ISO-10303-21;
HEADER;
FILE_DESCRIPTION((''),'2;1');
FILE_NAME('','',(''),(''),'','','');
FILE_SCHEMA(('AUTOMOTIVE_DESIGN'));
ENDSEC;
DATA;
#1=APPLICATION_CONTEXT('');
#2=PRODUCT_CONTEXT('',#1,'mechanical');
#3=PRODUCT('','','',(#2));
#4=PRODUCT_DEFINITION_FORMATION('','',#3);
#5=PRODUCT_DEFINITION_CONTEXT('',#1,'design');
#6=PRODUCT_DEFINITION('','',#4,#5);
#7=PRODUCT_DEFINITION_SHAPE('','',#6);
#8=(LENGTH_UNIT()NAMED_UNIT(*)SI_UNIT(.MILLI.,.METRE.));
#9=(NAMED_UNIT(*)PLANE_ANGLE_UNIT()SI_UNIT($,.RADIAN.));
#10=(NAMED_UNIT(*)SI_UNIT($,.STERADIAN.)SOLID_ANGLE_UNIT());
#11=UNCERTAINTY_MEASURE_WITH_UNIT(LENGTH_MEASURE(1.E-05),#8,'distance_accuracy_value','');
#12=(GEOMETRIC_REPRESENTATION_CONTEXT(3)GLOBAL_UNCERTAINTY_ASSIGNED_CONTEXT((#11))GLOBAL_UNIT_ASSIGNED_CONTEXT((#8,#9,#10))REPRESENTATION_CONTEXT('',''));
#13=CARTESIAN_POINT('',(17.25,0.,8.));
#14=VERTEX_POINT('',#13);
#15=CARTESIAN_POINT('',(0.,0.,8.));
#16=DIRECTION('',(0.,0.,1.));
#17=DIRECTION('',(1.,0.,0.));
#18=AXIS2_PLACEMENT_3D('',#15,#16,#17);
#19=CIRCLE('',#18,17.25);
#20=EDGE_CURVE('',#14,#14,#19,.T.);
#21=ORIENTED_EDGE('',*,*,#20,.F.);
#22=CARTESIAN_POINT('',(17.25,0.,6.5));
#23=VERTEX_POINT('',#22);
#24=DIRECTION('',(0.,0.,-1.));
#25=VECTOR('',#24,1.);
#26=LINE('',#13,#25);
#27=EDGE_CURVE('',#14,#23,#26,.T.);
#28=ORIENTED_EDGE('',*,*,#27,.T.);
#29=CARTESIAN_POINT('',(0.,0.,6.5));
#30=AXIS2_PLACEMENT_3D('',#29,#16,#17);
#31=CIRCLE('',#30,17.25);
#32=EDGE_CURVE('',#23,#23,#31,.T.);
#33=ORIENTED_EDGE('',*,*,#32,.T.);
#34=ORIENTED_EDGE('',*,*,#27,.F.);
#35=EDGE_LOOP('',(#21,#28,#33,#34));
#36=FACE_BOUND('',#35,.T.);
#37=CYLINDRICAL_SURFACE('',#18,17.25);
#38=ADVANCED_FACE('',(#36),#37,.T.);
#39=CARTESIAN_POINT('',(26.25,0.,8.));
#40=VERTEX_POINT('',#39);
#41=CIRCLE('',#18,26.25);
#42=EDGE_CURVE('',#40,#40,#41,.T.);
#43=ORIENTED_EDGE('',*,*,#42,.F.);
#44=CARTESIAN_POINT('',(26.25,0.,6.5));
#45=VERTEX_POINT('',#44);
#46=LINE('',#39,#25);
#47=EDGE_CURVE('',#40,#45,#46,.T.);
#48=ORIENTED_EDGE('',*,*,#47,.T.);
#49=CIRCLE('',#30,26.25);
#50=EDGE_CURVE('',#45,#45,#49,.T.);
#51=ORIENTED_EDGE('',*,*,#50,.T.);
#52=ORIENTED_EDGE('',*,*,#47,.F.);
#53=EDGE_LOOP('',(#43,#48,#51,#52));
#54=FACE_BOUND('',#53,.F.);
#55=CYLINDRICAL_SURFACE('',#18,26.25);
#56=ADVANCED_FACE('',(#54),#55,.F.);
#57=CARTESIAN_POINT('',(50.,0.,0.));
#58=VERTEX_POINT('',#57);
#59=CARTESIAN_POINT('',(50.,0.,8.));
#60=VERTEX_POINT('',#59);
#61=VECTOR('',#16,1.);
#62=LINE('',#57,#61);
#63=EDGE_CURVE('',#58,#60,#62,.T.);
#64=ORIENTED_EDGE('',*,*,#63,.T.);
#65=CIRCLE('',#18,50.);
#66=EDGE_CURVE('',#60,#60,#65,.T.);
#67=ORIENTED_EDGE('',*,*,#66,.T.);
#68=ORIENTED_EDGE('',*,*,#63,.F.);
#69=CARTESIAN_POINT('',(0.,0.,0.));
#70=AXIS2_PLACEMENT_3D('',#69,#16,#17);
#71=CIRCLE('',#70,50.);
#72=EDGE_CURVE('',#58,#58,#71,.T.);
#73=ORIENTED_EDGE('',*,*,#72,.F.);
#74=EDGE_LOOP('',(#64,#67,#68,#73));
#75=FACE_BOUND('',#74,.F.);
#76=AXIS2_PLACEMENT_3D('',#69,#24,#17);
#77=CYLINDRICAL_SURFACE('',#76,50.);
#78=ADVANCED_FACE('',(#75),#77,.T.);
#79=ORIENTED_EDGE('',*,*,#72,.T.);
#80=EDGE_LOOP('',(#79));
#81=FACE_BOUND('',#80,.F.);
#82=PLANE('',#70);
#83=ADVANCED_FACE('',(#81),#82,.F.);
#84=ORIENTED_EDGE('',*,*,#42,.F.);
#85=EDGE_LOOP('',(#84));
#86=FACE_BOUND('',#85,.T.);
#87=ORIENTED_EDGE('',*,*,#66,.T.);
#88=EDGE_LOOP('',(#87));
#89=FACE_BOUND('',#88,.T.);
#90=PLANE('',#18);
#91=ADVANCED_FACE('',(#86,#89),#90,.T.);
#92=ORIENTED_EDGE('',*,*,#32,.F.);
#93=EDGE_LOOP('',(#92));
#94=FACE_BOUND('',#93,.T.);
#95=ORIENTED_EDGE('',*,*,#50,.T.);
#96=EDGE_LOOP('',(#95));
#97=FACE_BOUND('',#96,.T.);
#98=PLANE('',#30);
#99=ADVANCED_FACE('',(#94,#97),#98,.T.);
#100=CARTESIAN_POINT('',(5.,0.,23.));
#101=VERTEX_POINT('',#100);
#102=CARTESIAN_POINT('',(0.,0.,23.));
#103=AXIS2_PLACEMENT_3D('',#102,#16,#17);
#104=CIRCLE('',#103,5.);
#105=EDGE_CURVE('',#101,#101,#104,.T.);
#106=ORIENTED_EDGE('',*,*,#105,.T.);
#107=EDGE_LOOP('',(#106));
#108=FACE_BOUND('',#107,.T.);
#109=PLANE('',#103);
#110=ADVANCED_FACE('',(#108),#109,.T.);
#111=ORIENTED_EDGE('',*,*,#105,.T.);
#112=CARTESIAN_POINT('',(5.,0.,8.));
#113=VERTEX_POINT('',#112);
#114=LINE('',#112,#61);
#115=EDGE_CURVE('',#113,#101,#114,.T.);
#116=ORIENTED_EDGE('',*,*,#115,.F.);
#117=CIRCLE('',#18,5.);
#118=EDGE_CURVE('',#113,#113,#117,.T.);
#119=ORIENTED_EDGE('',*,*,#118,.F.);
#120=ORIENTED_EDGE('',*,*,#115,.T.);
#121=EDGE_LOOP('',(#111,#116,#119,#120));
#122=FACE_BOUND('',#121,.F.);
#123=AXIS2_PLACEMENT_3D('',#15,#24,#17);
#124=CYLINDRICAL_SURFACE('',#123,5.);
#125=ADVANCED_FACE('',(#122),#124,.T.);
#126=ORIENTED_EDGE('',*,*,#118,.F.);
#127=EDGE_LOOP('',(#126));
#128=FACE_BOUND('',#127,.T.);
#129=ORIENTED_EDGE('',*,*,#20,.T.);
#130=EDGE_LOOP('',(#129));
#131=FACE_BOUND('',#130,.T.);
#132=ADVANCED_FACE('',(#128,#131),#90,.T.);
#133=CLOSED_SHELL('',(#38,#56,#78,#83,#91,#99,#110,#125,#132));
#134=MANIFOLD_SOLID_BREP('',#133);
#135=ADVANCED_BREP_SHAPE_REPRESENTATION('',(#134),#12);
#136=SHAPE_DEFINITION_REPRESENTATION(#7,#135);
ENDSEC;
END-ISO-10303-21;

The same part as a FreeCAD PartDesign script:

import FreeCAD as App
import Part
import Sketcher
from FreeCAD import Vector

doc = App.newDocument("Part")
body = doc.addObject("PartDesign::Body", "Body")

# Sketch on XY plane
sketch1 = body.newObject("Sketcher::SketchObject", "Sketch")
sketch1.AttachmentSupport = (doc.getObject("XY_Plane"), [""])
sketch1.MapMode = "FlatFace"
sketch1.addGeometry(Part.Circle(Vector(0, 0, 0), Vector(0, 0, 1), 50), False)
sketch1.addConstraint([
    Sketcher.Constraint("Coincident", 0, 3, -1, 1),
    Sketcher.Constraint("Diameter", 0, 100.0),
])
pad1 = body.newObject("PartDesign::Pad", "Pad")
pad1.Profile = sketch1
pad1.Length = 8

# Sketch on XY plane
sketch2 = body.newObject("Sketcher::SketchObject", "Sketch001")
sketch2.AttachmentSupport = (doc.getObject("XY_Plane"), [""])
sketch2.MapMode = "FlatFace"
sketch2.AttachmentOffset = App.Placement(Vector(0, 0, 8), App.Rotation())
sketch2.addGeometry([
    Part.Circle(Vector(0, 0, 0), Vector(0, 0, 1), 26),
    Part.Circle(Vector(0, 0, 0), Vector(0, 0, 1), 17),
], False)
sketch2.addConstraint([
    Sketcher.Constraint("Coincident", 0, 3, -1, 1),
    Sketcher.Constraint("Coincident", 1, 3, -1, 1),
    Sketcher.Constraint("Diameter", 0, 52.5),
    Sketcher.Constraint("Diameter", 1, 34.5),
])
pocket1 = body.newObject("PartDesign::Pocket", "Pocket")
pocket1.Profile = sketch2
pocket1.Length = 1.5

# Sketch on XY plane
sketch3 = body.newObject("Sketcher::SketchObject", "Sketch002")
sketch3.AttachmentSupport = (doc.getObject("XY_Plane"), [""])
sketch3.MapMode = "FlatFace"
sketch3.AttachmentOffset = App.Placement(Vector(0, 0, 8), App.Rotation())
sketch3.addGeometry(Part.Circle(Vector(0, 0, 0), Vector(0, 0, 1), 5), False)
sketch3.addConstraint([
    Sketcher.Constraint("Coincident", 0, 3, -1, 1),
    Sketcher.Constraint("Diameter", 0, 10.0),
])
pad2 = body.newObject("PartDesign::Pad", "Pad001")
pad2.Profile = sketch3
pad2.Length = 15

doc.recompute()
